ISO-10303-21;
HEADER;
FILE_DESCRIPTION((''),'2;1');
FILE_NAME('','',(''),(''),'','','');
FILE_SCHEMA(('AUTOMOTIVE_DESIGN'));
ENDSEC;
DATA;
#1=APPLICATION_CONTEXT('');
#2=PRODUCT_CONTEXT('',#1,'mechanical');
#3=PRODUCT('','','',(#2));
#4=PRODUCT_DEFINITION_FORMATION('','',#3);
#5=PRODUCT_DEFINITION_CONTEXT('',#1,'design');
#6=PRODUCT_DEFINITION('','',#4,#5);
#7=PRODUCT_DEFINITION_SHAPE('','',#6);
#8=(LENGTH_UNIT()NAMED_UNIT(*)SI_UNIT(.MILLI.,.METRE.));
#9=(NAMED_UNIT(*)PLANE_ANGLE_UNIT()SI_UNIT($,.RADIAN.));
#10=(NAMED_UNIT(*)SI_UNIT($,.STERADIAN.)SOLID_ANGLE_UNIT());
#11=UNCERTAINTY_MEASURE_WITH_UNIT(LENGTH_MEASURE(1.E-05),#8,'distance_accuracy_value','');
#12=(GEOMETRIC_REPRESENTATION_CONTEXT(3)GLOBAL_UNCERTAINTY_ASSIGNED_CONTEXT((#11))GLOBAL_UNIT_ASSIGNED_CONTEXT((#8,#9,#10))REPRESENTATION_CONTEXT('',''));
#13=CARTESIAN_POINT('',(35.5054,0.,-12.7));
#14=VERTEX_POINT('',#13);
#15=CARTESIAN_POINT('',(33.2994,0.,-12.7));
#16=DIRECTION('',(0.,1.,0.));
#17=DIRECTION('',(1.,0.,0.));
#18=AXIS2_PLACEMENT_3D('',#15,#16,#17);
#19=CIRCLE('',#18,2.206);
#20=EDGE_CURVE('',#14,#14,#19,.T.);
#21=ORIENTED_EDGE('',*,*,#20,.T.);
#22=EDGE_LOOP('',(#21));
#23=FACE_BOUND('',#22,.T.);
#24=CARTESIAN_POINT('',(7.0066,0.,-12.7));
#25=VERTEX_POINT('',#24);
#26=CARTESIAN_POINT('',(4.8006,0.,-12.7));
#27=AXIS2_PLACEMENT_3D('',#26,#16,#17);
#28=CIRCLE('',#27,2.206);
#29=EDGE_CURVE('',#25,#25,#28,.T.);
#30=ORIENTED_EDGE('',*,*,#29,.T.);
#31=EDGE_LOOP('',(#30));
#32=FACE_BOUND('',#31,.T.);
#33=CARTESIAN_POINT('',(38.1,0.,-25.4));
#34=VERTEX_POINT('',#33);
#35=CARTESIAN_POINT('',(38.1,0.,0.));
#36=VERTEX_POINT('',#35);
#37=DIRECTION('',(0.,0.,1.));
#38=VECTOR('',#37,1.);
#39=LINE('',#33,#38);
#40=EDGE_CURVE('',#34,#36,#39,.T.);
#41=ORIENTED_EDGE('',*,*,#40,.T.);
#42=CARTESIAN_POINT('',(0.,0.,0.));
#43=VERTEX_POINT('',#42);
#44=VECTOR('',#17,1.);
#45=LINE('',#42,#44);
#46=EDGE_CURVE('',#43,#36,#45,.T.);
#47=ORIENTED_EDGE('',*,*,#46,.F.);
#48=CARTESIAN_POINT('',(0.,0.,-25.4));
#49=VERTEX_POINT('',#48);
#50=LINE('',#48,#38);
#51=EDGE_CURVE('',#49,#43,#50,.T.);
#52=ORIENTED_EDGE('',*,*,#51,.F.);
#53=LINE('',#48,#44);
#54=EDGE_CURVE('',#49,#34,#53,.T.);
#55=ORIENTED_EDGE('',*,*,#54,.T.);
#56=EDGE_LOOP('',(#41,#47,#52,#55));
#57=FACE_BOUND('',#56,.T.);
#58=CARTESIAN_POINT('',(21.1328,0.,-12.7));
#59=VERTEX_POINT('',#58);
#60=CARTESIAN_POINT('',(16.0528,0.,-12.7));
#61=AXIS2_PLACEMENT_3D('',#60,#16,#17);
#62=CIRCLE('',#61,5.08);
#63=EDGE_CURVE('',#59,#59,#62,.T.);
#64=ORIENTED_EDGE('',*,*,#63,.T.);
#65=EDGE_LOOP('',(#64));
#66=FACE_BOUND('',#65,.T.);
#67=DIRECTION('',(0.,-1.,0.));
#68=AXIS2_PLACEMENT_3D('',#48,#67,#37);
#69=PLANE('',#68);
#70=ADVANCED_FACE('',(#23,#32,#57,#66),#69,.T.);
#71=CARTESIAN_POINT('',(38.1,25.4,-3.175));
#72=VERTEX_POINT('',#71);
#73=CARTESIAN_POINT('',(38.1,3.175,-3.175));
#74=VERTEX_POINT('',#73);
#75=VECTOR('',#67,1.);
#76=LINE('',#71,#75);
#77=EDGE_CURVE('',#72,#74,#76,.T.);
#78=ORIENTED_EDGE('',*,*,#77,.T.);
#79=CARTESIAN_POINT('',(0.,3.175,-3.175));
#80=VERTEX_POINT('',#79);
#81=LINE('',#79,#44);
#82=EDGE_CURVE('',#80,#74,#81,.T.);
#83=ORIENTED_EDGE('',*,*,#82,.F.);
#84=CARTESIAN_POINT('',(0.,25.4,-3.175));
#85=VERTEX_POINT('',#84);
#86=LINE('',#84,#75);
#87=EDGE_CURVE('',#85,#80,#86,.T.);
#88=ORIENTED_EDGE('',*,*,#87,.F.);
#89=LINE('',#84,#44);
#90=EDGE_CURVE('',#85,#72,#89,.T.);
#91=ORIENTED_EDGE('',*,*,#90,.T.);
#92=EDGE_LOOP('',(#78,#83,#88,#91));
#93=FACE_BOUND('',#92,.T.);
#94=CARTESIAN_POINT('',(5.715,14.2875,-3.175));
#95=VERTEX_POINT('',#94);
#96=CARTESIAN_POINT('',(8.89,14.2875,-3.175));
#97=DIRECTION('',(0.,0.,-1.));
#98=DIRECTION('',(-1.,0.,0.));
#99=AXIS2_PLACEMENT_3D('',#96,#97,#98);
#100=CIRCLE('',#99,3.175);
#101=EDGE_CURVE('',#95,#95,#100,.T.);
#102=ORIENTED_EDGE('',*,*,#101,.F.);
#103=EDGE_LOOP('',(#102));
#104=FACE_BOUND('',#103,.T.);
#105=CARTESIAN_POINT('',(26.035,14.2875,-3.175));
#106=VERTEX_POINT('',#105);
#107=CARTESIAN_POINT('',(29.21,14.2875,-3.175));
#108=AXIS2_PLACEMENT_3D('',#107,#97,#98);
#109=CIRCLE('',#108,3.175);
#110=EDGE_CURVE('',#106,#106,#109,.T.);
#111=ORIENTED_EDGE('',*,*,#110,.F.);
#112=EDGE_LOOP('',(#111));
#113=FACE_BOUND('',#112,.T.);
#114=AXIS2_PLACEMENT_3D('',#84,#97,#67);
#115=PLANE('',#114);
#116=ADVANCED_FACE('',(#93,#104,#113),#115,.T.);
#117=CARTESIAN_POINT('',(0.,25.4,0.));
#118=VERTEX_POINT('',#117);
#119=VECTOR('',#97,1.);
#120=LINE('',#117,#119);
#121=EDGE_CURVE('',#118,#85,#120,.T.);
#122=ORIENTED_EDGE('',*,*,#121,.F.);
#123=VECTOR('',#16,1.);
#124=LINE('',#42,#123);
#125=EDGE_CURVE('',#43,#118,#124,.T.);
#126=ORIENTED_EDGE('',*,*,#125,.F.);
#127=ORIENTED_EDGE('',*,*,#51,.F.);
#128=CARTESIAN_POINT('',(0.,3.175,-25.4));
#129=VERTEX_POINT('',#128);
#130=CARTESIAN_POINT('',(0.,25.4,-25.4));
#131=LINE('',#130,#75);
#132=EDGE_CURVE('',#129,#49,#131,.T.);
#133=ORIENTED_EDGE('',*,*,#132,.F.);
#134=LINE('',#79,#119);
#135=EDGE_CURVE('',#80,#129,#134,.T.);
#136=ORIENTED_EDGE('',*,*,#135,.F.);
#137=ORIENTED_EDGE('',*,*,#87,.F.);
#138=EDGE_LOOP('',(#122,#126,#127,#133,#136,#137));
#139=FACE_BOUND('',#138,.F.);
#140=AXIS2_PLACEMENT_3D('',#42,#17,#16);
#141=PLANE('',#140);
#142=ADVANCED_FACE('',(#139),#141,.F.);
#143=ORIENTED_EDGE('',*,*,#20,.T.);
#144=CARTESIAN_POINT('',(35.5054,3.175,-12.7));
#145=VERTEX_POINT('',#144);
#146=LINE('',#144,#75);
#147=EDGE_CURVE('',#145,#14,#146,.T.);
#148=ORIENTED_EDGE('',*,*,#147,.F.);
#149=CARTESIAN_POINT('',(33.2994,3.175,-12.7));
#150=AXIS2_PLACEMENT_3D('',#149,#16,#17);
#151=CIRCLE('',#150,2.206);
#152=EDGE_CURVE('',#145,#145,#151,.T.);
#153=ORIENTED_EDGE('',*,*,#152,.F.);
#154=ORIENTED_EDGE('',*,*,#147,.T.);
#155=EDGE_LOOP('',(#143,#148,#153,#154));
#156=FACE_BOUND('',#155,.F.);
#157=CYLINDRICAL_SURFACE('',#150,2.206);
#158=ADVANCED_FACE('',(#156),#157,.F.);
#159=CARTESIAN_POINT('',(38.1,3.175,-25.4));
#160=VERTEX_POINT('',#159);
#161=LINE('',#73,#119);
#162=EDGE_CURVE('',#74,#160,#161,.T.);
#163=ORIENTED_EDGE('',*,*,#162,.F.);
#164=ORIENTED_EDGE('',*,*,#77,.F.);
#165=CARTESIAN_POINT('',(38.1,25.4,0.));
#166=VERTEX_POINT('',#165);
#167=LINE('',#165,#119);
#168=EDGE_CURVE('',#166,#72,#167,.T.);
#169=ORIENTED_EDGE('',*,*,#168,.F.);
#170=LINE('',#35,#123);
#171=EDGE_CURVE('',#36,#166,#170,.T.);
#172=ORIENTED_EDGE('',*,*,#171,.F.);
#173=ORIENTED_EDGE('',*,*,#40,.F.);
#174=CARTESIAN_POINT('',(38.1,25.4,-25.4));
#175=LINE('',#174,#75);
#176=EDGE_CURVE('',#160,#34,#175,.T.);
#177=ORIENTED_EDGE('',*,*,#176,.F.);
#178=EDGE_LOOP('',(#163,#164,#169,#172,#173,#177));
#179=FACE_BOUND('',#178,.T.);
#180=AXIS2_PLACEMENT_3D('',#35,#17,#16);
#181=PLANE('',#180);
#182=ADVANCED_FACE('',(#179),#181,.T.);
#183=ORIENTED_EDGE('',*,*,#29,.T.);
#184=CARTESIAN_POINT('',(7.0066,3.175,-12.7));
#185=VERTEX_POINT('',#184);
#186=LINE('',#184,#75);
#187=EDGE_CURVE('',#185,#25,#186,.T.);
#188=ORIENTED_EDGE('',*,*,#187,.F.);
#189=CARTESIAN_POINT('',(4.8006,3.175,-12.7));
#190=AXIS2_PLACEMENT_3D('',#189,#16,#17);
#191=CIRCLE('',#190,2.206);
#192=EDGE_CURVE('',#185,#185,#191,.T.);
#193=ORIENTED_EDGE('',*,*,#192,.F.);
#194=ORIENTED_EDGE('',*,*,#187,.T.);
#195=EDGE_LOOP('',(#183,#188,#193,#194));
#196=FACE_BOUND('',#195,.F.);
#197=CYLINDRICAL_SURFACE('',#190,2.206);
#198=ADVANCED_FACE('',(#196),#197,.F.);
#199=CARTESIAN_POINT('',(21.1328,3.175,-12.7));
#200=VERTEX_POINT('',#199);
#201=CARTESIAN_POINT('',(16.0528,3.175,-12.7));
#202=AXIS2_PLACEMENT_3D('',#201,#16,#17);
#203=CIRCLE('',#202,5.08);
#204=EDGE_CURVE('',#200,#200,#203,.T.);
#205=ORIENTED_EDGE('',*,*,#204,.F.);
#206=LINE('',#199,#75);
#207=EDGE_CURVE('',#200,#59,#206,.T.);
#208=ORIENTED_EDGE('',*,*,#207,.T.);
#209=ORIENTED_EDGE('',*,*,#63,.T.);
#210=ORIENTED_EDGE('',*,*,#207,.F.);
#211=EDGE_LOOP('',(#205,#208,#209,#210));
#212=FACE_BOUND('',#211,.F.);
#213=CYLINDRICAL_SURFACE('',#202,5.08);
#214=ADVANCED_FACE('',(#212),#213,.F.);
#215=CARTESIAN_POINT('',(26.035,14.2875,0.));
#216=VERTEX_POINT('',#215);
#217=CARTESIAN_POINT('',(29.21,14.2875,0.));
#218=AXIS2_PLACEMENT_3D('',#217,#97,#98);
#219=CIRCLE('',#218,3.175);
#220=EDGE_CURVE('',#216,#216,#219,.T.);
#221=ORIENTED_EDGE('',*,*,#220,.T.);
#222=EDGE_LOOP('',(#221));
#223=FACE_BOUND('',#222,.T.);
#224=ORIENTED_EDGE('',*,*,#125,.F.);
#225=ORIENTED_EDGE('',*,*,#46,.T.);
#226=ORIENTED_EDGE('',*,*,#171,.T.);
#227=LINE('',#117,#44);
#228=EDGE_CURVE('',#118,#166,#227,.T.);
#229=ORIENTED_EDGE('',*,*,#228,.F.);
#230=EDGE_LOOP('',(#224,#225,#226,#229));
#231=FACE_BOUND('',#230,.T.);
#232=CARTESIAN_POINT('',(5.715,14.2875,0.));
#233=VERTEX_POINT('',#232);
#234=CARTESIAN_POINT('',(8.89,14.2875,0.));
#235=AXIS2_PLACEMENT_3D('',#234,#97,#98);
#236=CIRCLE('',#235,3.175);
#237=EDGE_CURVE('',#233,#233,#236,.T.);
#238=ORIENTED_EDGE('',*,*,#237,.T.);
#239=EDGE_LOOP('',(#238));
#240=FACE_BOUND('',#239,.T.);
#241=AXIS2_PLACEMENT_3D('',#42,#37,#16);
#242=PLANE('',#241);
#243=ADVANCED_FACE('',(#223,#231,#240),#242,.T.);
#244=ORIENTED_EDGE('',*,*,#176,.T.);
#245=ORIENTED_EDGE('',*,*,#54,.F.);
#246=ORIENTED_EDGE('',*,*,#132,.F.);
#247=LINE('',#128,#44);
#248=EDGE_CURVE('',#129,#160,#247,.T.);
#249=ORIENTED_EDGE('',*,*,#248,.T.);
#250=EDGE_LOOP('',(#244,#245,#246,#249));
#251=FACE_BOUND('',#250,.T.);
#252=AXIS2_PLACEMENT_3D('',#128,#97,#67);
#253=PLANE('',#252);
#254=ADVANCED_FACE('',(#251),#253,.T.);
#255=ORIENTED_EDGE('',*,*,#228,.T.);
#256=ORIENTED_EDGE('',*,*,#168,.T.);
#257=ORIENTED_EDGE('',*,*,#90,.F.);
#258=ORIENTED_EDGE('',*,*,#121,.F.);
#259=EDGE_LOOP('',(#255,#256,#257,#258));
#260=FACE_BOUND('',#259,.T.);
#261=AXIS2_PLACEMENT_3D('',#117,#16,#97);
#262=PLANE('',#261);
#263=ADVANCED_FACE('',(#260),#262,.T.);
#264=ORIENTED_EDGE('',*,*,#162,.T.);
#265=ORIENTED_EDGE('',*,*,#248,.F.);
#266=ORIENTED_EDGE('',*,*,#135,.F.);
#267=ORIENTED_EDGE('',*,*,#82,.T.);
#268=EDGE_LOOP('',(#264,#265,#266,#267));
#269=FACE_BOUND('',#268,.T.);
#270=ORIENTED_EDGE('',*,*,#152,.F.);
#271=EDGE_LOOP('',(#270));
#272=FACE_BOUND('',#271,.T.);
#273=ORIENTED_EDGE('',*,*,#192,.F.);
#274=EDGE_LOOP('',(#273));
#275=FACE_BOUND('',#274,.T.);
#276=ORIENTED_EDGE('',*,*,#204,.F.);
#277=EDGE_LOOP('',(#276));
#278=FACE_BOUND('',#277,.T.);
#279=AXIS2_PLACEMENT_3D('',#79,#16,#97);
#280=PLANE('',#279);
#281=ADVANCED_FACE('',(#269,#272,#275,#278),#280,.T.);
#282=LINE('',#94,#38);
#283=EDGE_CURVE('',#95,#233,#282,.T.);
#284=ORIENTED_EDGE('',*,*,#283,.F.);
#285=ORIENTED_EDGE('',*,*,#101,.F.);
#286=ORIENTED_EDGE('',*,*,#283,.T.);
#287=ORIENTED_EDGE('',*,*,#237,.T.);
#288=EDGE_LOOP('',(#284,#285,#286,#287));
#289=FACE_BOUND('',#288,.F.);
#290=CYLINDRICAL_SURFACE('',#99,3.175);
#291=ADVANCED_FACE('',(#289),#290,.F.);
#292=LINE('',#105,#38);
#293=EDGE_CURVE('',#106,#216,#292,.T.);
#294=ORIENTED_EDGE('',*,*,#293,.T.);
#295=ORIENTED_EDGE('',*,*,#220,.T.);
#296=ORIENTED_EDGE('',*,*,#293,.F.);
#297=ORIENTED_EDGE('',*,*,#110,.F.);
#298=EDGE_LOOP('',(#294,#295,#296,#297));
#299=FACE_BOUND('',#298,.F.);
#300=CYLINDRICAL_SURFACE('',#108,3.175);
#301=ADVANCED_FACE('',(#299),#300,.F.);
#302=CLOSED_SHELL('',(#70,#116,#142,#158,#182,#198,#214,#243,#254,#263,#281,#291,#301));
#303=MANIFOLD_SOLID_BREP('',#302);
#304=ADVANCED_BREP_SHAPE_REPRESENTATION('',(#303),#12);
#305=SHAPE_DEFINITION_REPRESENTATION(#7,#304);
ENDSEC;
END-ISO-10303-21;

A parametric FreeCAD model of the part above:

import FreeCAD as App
import Part
import Sketcher

V = App.Vector
Q = App.Units.Quantity


def add_polygon(sketch, points):
    """Adds a closed chain of lines whose ends are joined by coincident constraints."""
    first, n = sketch.GeometryCount, len(points)
    for a, b in zip(points, points[1:] + points[:1]):
        sketch.addGeometry(Part.LineSegment(App.Vector(*a, 0), App.Vector(*b, 0)), False)
    for i in range(n):
        sketch.addConstraint(Sketcher.Constraint("Coincident", first + i, 2, first + (i + 1) % n, 1))

doc = App.newDocument("Part")
body = doc.addObject("PartDesign::Body", "Body")

sketch1 = doc.addObject("Sketcher::SketchObject", "Sketch")
body.addObject(sketch1)
sketch1.AttachmentSupport = (doc.YZ_Plane, [""])
sketch1.MapMode = "FlatFace"
add_polygon(sketch1, [(25.4, 0), (0, 0), (0, -25.4), (3.175, -25.4), (3.175, -3.175), (25.4, -3.175)])
sketch1.addConstraint([
    Sketcher.Constraint("Horizontal", 0),
    Sketcher.Constraint("Vertical", 1),
    Sketcher.Constraint("Horizontal", 2),
    Sketcher.Constraint("Vertical", 3),
    Sketcher.Constraint("Horizontal", 4),
    Sketcher.Constraint("Vertical", 5),
    Sketcher.Constraint("Coincident", 0, 2, -1, 1),
    Sketcher.Constraint("Equal", 0, 1),
    Sketcher.Constraint("Equal", 4, 3),
    Sketcher.Constraint("DistanceX", 0, 2, 0, 1, Q("1 in")),
    Sketcher.Constraint("DistanceX", 2, 1, 2, 2, Q("0.125 in")),
])
pad1 = doc.addObject("PartDesign::Pad", "Pad")
body.addObject(pad1)
pad1.Profile = sketch1
pad1.Length = Q("1.5 in")

sketch2 = doc.addObject("Sketcher::SketchObject", "Sketch001")
body.addObject(sketch2)
sketch2.AttachmentSupport = (doc.XZ_Plane, [""])
sketch2.MapMode = "FlatFace"
sketch2.AttachmentOffset = App.Placement(V(0, 0, -0.125 * 25.4), App.Rotation())
sketch2.addGeometry([
    Part.Circle(V(4.8006, -12.7, 0), V(0, 0, 1), 2.206),
    Part.Circle(V(33.2994, -12.7, 0), V(0, 0, 1), 2.206),
    Part.Circle(V(16.0528, -12.7, 0), V(0, 0, 1), 5.08),
], False)
sketch2.addConstraint([
    Sketcher.Constraint("Equal", 0, 1),
    Sketcher.Constraint("Horizontal", 0, 3, 1, 3),
    Sketcher.Constraint("Horizontal", 1, 3, 2, 3),
    Sketcher.Constraint("Diameter", 2, Q("0.4 in")),
    Sketcher.Constraint("Diameter", 0, Q("0.1737 in")),
    Sketcher.Constraint("DistanceX", 0, 3, 2, 3, Q("0.443 in")),
    Sketcher.Constraint("DistanceY", 0, 3, -1, 1, Q("0.5 in")),
    Sketcher.Constraint("DistanceX", -1, 1, 0, 3, Q("0.189 in")),
    Sketcher.Constraint("DistanceX", -1, 1, 1, 3, Q("1.311 in")),
])
pocket1 = doc.addObject("PartDesign::Pocket", "Pocket")
body.addObject(pocket1)
pocket1.Profile = sketch2
pocket1.Length = Q("1.5 in")
pocket1.Reversed = True

sketch3 = doc.addObject("Sketcher::SketchObject", "Sketch002")
body.addObject(sketch3)
sketch3.AttachmentSupport = (doc.XY_Plane, [""])
sketch3.MapMode = "FlatFace"
sketch3.AttachmentOffset = App.Placement(V(0, 0, -0.125 * 25.4), App.Rotation())
sketch3.addGeometry([
    Part.Circle(V(29.21, 14.2875, 0), V(0, 0, 1), 3.175),
    Part.Circle(V(8.89, 14.2875, 0), V(0, 0, 1), 3.175),
], False)
sketch3.addConstraint([
    Sketcher.Constraint("Equal", 0, 1),
    Sketcher.Constraint("Horizontal", 0, 3, 1, 3),
    Sketcher.Constraint("Diameter", 0, Q("0.25 in")),
    Sketcher.Constraint("DistanceX", 1, 3, 0, 3, Q("0.8 in")),
    Sketcher.Constraint("DistanceX", -1, 1, 0, 3, Q("1.15 in")),
    Sketcher.Constraint("DistanceY", -1, 1, 0, 3, Q("0.5625 in")),
])
pocket2 = doc.addObject("PartDesign::Pocket", "Pocket001")
body.addObject(pocket2)
pocket2.Profile = sketch3
pocket2.Length = Q("1.5 in")
pocket2.Reversed = True

doc.recompute()
